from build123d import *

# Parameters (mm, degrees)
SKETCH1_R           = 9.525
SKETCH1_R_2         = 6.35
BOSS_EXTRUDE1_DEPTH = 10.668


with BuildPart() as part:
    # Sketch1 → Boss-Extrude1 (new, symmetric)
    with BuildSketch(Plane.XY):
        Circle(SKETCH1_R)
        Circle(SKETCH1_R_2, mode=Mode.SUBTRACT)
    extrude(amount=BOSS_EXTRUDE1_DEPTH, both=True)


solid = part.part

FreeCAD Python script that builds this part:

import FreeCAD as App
import Part
import Sketcher
Q = App.Units.Quantity

doc = App.newDocument("Part")
params = doc.addObject("Spreadsheet::Sheet", "Params")
for row, (alias, value) in enumerate([
    ("sketch1_diameter", "0.5 in"),
    ("sketch1_diameter2", "0.75 in"),
    ("pad1_length", "0.84 in"),
], start=1):
    params.set(f"A{row}", alias)
    params.set(f"B{row}", "=" + value)
    params.setAlias(f"B{row}", alias)

body = doc.addObject("PartDesign::Body", "Body")

sketch1 = body.newObject("Sketcher::SketchObject", "Sketch")
sketch1.AttachmentSupport = (doc.getObject("XY_Plane"), [""])
sketch1.MapMode = "FlatFace"
sketch1.addGeometry(Part.Circle(App.Vector(0, 0, 0), App.Vector(0, 0, 1), 9.525), False)
sketch1.addGeometry(Part.Circle(App.Vector(0, 0, 0), App.Vector(0, 0, 1), 6.35), False)
sketch1.addConstraint(Sketcher.Constraint("Coincident", 0, 3, -1, 1))
sketch1.addConstraint(Sketcher.Constraint("Coincident", 1, 3, -1, 1))
sketch1.addConstraint(Sketcher.Constraint("Diameter", 1, Q("0.5 in")))
sketch1.addConstraint(Sketcher.Constraint("Diameter", 0, Q("0.75 in")))
sketch1.setExpression("Constraints[2]", "Params.sketch1_diameter")
sketch1.setExpression("Constraints[3]", "Params.sketch1_diameter2")
pad1 = body.newObject("PartDesign::Pad", "Pad")
pad1.Profile = sketch1
pad1.setExpression("Length", "Params.pad1_length")
pad1.Midplane = True

doc.recompute()
